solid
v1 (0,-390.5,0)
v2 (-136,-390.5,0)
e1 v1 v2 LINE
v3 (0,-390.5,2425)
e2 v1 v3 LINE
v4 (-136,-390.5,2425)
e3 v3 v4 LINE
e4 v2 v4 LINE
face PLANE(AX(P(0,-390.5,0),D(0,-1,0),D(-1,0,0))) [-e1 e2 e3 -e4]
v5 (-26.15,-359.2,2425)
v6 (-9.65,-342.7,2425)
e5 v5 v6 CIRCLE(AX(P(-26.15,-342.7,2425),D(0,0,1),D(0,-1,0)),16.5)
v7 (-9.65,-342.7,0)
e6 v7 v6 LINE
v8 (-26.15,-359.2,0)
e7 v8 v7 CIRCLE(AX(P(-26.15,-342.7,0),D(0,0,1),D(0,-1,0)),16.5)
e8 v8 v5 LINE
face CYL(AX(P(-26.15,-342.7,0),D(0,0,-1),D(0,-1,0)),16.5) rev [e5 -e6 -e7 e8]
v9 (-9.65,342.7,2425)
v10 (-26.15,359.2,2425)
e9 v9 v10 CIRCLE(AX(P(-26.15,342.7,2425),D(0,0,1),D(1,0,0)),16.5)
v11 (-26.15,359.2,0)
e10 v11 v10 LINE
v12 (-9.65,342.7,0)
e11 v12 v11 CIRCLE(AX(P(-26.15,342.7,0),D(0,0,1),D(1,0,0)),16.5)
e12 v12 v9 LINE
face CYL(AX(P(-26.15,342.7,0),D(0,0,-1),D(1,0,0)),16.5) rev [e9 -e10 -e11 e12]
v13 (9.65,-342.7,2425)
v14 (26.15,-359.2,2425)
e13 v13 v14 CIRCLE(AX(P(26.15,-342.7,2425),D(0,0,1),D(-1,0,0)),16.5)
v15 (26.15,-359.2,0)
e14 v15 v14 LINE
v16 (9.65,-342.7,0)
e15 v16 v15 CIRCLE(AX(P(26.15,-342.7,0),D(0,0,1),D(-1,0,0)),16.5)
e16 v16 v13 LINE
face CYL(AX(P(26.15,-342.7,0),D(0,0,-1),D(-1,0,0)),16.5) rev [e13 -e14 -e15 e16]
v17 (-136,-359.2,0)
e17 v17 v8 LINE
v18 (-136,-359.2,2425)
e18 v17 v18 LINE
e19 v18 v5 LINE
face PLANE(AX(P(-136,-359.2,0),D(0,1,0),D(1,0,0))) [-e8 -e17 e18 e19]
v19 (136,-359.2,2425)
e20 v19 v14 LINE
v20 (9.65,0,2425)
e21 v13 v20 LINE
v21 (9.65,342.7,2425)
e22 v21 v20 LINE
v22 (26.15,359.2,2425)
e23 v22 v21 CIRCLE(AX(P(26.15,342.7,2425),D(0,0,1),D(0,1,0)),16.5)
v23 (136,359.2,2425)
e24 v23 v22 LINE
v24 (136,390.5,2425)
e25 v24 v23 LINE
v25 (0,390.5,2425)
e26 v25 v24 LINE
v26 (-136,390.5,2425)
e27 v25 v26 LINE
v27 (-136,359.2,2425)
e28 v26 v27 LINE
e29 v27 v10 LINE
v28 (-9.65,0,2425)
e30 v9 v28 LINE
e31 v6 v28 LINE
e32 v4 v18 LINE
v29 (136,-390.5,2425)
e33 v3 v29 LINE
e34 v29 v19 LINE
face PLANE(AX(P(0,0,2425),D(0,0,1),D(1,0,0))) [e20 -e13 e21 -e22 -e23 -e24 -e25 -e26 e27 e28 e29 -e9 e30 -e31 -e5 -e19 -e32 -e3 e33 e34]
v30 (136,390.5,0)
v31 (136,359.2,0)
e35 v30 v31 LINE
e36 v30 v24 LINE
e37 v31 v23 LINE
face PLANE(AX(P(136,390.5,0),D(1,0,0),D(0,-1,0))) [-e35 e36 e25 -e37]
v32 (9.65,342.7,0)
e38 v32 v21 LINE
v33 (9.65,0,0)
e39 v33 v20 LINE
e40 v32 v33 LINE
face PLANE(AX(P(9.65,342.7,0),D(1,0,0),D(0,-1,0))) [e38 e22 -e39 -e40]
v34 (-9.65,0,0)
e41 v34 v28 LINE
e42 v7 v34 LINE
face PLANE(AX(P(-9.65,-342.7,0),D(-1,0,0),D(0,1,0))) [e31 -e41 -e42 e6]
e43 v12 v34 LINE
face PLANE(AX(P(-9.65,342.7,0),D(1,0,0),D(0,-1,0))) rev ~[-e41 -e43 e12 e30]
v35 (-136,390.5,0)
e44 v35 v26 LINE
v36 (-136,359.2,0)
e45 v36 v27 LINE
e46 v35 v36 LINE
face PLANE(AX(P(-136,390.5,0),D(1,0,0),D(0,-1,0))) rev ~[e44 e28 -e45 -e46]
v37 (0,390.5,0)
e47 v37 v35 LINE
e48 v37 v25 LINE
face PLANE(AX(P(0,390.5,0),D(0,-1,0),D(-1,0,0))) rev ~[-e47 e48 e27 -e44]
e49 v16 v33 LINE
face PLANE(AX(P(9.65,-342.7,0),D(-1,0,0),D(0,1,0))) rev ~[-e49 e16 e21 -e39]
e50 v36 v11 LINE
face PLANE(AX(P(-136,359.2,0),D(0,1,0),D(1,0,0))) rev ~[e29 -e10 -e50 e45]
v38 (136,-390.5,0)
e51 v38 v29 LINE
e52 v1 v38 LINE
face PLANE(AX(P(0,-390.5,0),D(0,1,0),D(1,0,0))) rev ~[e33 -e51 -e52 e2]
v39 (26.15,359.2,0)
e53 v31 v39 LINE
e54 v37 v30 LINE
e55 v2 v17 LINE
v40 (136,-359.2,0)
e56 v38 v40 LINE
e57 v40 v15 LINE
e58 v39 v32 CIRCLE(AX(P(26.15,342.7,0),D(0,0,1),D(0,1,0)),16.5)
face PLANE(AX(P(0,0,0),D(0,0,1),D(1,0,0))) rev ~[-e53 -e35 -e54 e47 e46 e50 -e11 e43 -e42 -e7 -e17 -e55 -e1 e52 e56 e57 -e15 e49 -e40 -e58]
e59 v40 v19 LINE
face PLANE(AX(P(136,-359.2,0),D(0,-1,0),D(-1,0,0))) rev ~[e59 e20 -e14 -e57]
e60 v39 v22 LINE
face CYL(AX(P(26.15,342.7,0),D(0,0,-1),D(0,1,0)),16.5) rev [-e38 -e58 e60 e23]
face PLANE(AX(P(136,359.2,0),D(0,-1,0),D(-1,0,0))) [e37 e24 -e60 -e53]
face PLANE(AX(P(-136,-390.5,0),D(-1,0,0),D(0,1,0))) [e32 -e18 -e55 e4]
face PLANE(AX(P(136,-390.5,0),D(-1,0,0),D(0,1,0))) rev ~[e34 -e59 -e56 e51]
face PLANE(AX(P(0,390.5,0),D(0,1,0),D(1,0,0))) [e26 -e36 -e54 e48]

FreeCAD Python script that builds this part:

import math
import FreeCAD as App
import Part
import Sketcher

V = App.Vector

doc = App.newDocument("Part")
body = doc.addObject("PartDesign::Body", "Body")

sketch1 = body.newObject("Sketcher::SketchObject", "Sketch")
sketch1.AttachmentSupport = (doc.getObject("XY_Plane"), [""])
sketch1.MapMode = "FlatFace"
sketch1.addGeometry([
    Part.LineSegment(V(-136, -359, 0), V(-136, -390, 0)),
    Part.LineSegment(V(-136, -390, 0), V(136, -390, 0)),
    Part.LineSegment(V(136, -390, 0), V(136, -359, 0)),
    Part.LineSegment(V(136, -359, 0), V(26, -359, 0)),
    Part.ArcOfCircle(Part.Circle(V(26, -343, 0), V(0, 0, 1), 16), math.radians(180), math.radians(270)),
    Part.LineSegment(V(10, -343, 0), V(10, 343, 0)),
    Part.ArcOfCircle(Part.Circle(V(26, 343, 0), V(0, 0, 1), 16), math.radians(90), math.radians(180)),
    Part.LineSegment(V(26, 359, 0), V(136, 359, 0)),
    Part.LineSegment(V(136, 359, 0), V(136, 390, 0)),
    Part.LineSegment(V(136, 390, 0), V(-136, 390, 0)),
    Part.LineSegment(V(-136, 390, 0), V(-136, 359, 0)),
    Part.LineSegment(V(-136, 359, 0), V(-26, 359, 0)),
    Part.ArcOfCircle(Part.Circle(V(-26, 343, 0), V(0, 0, 1), 16), math.radians(0), math.radians(90)),
    Part.LineSegment(V(-10, 343, 0), V(-10, -343, 0)),
    Part.ArcOfCircle(Part.Circle(V(-26, -343, 0), V(0, 0, 1), 16), math.radians(-90), math.radians(0)),
    Part.LineSegment(V(-26, -359, 0), V(-136, -359, 0)),
], False)
sketch1.addConstraint([
    Sketcher.Constraint("Coincident", 0, 2, 1, 1),
    Sketcher.Constraint("Coincident", 1, 2, 2, 1),
    Sketcher.Constraint("Coincident", 2, 2, 3, 1),
    Sketcher.Constraint("Tangent", 3, 2, 4, 2),
    Sketcher.Constraint("Tangent", 4, 1, 5, 1),
    Sketcher.Constraint("Tangent", 5, 2, 6, 2),
    Sketcher.Constraint("Tangent", 6, 1, 7, 1),
    Sketcher.Constraint("Coincident", 7, 2, 8, 1),
    Sketcher.Constraint("Coincident", 8, 2, 9, 1),
    Sketcher.Constraint("Coincident", 9, 2, 10, 1),
    Sketcher.Constraint("Coincident", 10, 2, 11, 1),
    Sketcher.Constraint("Tangent", 11, 2, 12, 2),
    Sketcher.Constraint("Tangent", 12, 1, 13, 1),
    Sketcher.Constraint("Tangent", 13, 2, 14, 2),
    Sketcher.Constraint("Tangent", 14, 1, 15, 1),
    Sketcher.Constraint("Coincident", 15, 2, 0, 1),
    Sketcher.Constraint("Vertical", 0),
    Sketcher.Constraint("Horizontal", 1),
    Sketcher.Constraint("Vertical", 2),
    Sketcher.Constraint("Horizontal", 3),
    Sketcher.Constraint("Vertical", 5),
    Sketcher.Constraint("Horizontal", 7),
    Sketcher.Constraint("Vertical", 8),
    Sketcher.Constraint("Horizontal", 9),
    Sketcher.Constraint("Vertical", 10),
    Sketcher.Constraint("Horizontal", 11),
    Sketcher.Constraint("Vertical", 13),
    Sketcher.Constraint("Horizontal", 15),
    Sketcher.Constraint("Equal", 4, 6),
    Sketcher.Constraint("Equal", 6, 12),
    Sketcher.Constraint("Equal", 12, 14),
    Sketcher.Constraint("Symmetric", 4, 3, 12, 3, -1, 1),
    Sketcher.Constraint("Symmetric", 0, 2, 8, 2, -1, 1),
    Sketcher.Constraint("Symmetric", 7, 2, 10, 2, -2),
    Sketcher.Constraint("Symmetric", 2, 2, 15, 2, -2),
    Sketcher.Constraint("Radius", 4, 16.5),
    Sketcher.Constraint("DistanceY", 0, 2, 0, 1, 31.3),
    Sketcher.Constraint("DistanceX", 0, 2, -1, 1, 136.0),
    Sketcher.Constraint("DistanceY", 0, 2, -1, 1, 390.5),
    Sketcher.Constraint("DistanceX", -1, 1, 4, 1, 9.65),
])
pad1 = body.newObject("PartDesign::Pad", "Pad")
pad1.Profile = sketch1
pad1.Length = 2425

doc.recompute()
